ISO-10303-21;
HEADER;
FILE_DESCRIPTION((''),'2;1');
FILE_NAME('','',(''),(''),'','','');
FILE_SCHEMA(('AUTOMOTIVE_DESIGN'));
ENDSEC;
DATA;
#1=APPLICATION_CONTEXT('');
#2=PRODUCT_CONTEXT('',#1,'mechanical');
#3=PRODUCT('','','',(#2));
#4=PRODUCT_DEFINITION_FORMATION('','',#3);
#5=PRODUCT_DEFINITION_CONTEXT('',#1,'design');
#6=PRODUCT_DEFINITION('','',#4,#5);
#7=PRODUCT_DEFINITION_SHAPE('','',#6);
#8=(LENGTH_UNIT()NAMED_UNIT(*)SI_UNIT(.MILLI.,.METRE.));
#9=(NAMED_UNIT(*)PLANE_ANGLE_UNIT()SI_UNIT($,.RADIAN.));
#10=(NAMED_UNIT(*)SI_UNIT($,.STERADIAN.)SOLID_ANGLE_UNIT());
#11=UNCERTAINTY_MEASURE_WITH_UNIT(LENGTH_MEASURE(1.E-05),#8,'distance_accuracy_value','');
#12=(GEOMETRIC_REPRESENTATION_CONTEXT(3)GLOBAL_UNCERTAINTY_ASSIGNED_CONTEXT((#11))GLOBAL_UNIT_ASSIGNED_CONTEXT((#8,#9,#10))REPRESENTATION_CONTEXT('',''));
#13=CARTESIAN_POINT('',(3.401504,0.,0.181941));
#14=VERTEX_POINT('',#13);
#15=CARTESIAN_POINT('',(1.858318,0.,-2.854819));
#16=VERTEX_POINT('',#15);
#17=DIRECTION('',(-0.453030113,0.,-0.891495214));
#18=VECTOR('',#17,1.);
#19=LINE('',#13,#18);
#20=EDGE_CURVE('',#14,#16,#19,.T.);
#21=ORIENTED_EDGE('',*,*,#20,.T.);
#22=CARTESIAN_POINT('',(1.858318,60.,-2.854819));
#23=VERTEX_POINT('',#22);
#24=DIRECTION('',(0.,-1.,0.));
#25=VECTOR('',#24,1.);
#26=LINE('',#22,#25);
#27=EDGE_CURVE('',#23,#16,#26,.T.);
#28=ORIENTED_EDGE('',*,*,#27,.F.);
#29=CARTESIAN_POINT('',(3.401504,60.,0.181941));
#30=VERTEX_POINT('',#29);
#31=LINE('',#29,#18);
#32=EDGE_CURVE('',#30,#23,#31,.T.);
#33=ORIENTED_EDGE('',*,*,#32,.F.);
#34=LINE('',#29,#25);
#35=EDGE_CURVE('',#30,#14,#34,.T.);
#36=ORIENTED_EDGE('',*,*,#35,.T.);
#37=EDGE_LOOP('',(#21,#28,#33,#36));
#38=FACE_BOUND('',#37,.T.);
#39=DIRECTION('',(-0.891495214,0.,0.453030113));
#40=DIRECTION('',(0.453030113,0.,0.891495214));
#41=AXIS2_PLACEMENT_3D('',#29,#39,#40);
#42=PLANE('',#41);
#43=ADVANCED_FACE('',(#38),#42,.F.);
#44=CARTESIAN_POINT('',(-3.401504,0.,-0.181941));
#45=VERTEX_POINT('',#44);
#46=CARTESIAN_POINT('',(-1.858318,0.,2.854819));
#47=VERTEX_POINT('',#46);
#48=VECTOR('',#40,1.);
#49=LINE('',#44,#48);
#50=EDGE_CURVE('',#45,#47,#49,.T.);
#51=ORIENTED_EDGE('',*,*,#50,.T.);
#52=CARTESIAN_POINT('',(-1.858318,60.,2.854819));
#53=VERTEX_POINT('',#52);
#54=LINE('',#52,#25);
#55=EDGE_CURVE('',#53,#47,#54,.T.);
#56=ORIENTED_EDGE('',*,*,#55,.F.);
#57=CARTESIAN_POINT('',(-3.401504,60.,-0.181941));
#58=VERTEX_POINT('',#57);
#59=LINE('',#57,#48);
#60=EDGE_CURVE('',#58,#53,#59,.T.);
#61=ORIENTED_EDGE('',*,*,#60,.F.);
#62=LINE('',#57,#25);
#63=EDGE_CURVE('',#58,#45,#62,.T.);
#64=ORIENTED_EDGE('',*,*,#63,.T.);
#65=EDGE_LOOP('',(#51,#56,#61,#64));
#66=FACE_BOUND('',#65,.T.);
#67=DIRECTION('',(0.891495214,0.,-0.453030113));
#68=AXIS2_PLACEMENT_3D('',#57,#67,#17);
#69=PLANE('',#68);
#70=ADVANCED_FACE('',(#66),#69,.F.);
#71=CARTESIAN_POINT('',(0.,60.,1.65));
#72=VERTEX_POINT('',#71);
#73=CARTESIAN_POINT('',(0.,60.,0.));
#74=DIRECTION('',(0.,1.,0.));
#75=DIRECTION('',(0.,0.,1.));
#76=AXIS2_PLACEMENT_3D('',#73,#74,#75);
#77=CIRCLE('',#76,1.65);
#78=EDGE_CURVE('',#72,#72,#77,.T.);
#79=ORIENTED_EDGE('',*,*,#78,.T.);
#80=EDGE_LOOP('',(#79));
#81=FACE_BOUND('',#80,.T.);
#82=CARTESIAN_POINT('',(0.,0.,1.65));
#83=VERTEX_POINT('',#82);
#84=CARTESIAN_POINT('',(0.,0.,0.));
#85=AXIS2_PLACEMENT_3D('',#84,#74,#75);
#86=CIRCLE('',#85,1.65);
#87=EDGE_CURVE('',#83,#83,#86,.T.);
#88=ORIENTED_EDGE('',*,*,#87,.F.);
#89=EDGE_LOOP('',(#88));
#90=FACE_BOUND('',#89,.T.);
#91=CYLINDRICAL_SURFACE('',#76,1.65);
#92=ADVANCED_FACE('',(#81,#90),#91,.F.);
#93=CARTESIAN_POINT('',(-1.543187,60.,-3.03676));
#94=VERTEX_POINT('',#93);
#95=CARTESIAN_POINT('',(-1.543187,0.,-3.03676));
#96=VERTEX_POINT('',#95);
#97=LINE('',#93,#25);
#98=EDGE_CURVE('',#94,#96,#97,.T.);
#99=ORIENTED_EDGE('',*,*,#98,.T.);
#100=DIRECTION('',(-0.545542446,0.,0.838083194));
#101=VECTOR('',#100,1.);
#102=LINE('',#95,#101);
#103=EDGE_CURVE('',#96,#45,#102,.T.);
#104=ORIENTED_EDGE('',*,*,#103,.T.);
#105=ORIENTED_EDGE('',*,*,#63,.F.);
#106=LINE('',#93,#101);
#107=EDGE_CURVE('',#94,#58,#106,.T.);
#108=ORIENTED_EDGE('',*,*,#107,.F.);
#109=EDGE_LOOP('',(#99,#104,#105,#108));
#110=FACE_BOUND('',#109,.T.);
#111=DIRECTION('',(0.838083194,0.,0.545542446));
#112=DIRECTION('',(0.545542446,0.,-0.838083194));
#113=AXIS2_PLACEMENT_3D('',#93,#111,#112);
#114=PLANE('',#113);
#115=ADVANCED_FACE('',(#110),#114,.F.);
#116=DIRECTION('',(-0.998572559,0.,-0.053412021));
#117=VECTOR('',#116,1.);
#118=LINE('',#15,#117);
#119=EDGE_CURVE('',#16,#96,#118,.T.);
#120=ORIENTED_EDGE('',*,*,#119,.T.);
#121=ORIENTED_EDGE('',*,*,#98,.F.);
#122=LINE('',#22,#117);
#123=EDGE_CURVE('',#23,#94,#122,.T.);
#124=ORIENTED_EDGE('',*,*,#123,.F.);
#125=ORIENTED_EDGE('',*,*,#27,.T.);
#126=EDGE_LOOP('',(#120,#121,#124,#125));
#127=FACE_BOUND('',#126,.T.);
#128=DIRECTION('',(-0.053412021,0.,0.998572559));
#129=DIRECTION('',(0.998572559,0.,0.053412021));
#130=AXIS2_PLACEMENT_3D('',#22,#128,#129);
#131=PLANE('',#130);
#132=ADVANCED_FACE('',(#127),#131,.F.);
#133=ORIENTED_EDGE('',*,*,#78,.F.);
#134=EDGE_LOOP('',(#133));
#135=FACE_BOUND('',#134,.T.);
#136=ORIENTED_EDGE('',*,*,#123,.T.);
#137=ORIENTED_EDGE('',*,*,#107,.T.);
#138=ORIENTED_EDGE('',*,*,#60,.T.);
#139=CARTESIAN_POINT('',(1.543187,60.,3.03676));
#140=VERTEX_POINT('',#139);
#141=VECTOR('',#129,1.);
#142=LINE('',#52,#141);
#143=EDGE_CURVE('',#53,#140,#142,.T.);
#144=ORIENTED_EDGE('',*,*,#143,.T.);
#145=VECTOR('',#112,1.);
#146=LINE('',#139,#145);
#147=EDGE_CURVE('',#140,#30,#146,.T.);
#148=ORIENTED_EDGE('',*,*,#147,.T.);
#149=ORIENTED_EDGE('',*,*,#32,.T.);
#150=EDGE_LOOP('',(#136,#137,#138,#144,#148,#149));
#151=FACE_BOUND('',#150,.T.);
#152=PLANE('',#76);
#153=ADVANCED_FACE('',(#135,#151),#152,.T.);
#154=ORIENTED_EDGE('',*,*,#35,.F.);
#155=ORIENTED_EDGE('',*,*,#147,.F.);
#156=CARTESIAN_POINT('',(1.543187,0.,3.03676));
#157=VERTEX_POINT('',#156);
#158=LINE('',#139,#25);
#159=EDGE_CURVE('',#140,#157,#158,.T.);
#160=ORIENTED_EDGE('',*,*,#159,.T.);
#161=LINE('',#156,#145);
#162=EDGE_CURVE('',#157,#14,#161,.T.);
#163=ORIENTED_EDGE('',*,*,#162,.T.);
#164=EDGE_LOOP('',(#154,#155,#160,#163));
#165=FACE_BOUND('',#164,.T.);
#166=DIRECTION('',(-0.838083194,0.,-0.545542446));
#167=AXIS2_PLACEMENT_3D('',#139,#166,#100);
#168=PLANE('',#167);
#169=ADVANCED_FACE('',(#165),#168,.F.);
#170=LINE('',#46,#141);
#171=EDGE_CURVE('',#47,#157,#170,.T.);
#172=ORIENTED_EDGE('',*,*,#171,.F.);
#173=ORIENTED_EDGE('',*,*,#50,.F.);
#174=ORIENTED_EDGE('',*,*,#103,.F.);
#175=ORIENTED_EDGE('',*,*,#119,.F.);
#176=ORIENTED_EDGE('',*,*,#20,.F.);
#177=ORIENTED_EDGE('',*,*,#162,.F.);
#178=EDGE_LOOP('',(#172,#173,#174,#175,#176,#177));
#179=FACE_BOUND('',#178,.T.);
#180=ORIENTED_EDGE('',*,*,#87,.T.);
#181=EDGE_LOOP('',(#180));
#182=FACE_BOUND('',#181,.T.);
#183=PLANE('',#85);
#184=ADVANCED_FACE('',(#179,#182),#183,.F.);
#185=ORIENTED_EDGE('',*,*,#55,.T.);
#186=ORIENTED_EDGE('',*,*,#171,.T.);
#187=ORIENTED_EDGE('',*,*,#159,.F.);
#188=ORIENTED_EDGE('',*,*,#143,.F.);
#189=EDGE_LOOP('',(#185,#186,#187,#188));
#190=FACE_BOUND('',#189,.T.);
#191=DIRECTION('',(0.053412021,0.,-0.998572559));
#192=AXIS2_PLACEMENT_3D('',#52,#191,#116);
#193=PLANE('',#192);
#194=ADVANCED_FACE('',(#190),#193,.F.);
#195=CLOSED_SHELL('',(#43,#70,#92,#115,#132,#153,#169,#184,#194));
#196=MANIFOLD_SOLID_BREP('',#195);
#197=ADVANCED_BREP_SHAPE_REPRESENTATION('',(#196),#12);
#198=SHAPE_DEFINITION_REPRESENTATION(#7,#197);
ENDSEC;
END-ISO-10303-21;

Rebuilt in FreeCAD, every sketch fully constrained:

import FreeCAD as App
import Part
import Sketcher
from FreeCAD import Vector


def add_polygon(sketch, points):
    """Adds a closed chain of lines whose ends are joined by coincident constraints."""
    first, n = sketch.GeometryCount, len(points)
    for a, b in zip(points, points[1:] + points[:1]):
        sketch.addGeometry(Part.LineSegment(App.Vector(*a, 0), App.Vector(*b, 0)), False)
    for i in range(n):
        sketch.addConstraint(Sketcher.Constraint("Coincident", first + i, 2, first + (i + 1) % n, 1))

doc = App.newDocument("Part")
body = doc.addObject("PartDesign::Body", "Body")

sketch1 = doc.addObject("Sketcher::SketchObject", "Sketch")
body.addObject(sketch1)
sketch1.AttachmentSupport = (doc.XZ_Plane, [""])
sketch1.MapMode = "FlatFace"
add_polygon(sketch1, [(3.4, 0.2), (1.9, -2.9), (-1.5, -3), (-3.4, -0.2), (-1.9, 2.9), (1.5, 3)])
sketch1.addConstraint([
    Sketcher.Constraint("Symmetric", 0, 2, 3, 2, -1, 1),
    Sketcher.Constraint("Symmetric", 1, 2, 4, 2, -1, 1),
    Sketcher.Constraint("Symmetric", 2, 2, 5, 2, -1, 1),
    Sketcher.Constraint("Equal", 0, 1),
    Sketcher.Constraint("Equal", 1, 2),
    Sketcher.Constraint("DistanceY", 2, 2, 4, 2, 3.2187),
    Sketcher.Constraint("DistanceY", 0, 2, -1, 1, 2.854819),
    Sketcher.Constraint("DistanceY", 1, 2, -1, 1, 3.03676),
    Sketcher.Constraint("DistanceX", 2, 2, 0, 2, 5.259822),
])
pad1 = doc.addObject("PartDesign::Pad", "Pad")
body.addObject(pad1)
pad1.Profile = sketch1
pad1.Length = 60
pad1.Reversed = True

sketch2 = doc.addObject("Sketcher::SketchObject", "Sketch001")
body.addObject(sketch2)
sketch2.AttachmentSupport = (doc.XZ_Plane, [""])
sketch2.MapMode = "FlatFace"
sketch2.AttachmentOffset = App.Placement(Vector(0, 0, -60), App.Rotation())
sketch2.addGeometry(Part.Circle(Vector(0, 0, 0), Vector(0, 0, 1), 1.6), False)
sketch2.addConstraint([
    Sketcher.Constraint("Coincident", 0, 3, -1, 1),
    Sketcher.Constraint("Diameter", 0, 3.3),
])
doc.recompute()
hole = doc.addObject("PartDesign::Hole", "Hole")
body.addObject(hole)
hole.Profile = sketch2
hole.ThreadType = "None"
hole.Diameter = 3.3
hole.DepthType = "ThroughAll"
hole.Reversed = True

doc.recompute()
